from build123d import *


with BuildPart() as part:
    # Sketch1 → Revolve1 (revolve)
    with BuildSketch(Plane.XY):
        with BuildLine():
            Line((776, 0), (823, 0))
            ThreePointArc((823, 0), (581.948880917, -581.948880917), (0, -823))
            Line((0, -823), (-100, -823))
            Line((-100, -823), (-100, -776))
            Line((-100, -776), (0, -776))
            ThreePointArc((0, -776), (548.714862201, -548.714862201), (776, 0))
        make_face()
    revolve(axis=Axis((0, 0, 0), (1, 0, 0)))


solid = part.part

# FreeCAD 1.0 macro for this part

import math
import FreeCAD as App
import Part
import Sketcher

V = App.Vector

doc = App.newDocument("Part")
body = doc.addObject("PartDesign::Body", "Body")

# Sketch on XY plane
sketch1 = body.newObject("Sketcher::SketchObject", "Sketch")
sketch1.AttachmentSupport = (doc.getObject("XY_Plane"), [""])
sketch1.MapMode = "FlatFace"
sketch1.addGeometry(Part.LineSegment(V(823, 0, 0), V(776, 0, 0)), False)
sketch1.addGeometry(Part.ArcOfCircle(Part.Circle(V(0, 0, 0), V(0, 0, 1), 776), math.radians(-90), math.radians(0)), False)
sketch1.addGeometry(Part.LineSegment(V(0, -776, 0), V(-100, -776, 0)), False)
sketch1.addGeometry(Part.LineSegment(V(-100, -776, 0), V(-100, -823, 0)), False)
sketch1.addGeometry(Part.LineSegment(V(-100, -823, 0), V(0, -823, 0)), False)
sketch1.addGeometry(Part.ArcOfCircle(Part.Circle(V(0, 0, 0), V(0, 0, 1), 823), math.radians(-90), math.radians(0)), False)
sketch1.addConstraint(Sketcher.Constraint("Coincident", 0, 2, 1, 2))
sketch1.addConstraint(Sketcher.Constraint("Tangent", 1, 1, 2, 1))
sketch1.addConstraint(Sketcher.Constraint("Coincident", 2, 2, 3, 1))
sketch1.addConstraint(Sketcher.Constraint("Coincident", 3, 2, 4, 1))
sketch1.addConstraint(Sketcher.Constraint("Tangent", 4, 2, 5, 1))
sketch1.addConstraint(Sketcher.Constraint("Coincident", 5, 2, 0, 1))
sketch1.addConstraint(Sketcher.Constraint("Horizontal", 0))
sketch1.addConstraint(Sketcher.Constraint("Horizontal", 2))
sketch1.addConstraint(Sketcher.Constraint("Vertical", 3))
sketch1.addConstraint(Sketcher.Constraint("Horizontal", 4))
sketch1.addConstraint(Sketcher.Constraint("Coincident", 1, 3, -1, 1))
sketch1.addConstraint(Sketcher.Constraint("Coincident", 5, 3, -1, 1))
sketch1.addConstraint(Sketcher.Constraint("PointOnObject", 0, 2, -1))
sketch1.addConstraint(Sketcher.Constraint("Radius", 1, 776.0))
sketch1.addConstraint(Sketcher.Constraint("Radius", 5, 823.0))
sketch1.addConstraint(Sketcher.Constraint("DistanceX", 2, 2, 2, 1, 100.0))
revolution = body.newObject("PartDesign::Revolution", "Revolution")
revolution.Profile = sketch1
revolution.ReferenceAxis = (sketch1, ["H_Axis"])
revolution.Angle = 360

doc.recompute()
